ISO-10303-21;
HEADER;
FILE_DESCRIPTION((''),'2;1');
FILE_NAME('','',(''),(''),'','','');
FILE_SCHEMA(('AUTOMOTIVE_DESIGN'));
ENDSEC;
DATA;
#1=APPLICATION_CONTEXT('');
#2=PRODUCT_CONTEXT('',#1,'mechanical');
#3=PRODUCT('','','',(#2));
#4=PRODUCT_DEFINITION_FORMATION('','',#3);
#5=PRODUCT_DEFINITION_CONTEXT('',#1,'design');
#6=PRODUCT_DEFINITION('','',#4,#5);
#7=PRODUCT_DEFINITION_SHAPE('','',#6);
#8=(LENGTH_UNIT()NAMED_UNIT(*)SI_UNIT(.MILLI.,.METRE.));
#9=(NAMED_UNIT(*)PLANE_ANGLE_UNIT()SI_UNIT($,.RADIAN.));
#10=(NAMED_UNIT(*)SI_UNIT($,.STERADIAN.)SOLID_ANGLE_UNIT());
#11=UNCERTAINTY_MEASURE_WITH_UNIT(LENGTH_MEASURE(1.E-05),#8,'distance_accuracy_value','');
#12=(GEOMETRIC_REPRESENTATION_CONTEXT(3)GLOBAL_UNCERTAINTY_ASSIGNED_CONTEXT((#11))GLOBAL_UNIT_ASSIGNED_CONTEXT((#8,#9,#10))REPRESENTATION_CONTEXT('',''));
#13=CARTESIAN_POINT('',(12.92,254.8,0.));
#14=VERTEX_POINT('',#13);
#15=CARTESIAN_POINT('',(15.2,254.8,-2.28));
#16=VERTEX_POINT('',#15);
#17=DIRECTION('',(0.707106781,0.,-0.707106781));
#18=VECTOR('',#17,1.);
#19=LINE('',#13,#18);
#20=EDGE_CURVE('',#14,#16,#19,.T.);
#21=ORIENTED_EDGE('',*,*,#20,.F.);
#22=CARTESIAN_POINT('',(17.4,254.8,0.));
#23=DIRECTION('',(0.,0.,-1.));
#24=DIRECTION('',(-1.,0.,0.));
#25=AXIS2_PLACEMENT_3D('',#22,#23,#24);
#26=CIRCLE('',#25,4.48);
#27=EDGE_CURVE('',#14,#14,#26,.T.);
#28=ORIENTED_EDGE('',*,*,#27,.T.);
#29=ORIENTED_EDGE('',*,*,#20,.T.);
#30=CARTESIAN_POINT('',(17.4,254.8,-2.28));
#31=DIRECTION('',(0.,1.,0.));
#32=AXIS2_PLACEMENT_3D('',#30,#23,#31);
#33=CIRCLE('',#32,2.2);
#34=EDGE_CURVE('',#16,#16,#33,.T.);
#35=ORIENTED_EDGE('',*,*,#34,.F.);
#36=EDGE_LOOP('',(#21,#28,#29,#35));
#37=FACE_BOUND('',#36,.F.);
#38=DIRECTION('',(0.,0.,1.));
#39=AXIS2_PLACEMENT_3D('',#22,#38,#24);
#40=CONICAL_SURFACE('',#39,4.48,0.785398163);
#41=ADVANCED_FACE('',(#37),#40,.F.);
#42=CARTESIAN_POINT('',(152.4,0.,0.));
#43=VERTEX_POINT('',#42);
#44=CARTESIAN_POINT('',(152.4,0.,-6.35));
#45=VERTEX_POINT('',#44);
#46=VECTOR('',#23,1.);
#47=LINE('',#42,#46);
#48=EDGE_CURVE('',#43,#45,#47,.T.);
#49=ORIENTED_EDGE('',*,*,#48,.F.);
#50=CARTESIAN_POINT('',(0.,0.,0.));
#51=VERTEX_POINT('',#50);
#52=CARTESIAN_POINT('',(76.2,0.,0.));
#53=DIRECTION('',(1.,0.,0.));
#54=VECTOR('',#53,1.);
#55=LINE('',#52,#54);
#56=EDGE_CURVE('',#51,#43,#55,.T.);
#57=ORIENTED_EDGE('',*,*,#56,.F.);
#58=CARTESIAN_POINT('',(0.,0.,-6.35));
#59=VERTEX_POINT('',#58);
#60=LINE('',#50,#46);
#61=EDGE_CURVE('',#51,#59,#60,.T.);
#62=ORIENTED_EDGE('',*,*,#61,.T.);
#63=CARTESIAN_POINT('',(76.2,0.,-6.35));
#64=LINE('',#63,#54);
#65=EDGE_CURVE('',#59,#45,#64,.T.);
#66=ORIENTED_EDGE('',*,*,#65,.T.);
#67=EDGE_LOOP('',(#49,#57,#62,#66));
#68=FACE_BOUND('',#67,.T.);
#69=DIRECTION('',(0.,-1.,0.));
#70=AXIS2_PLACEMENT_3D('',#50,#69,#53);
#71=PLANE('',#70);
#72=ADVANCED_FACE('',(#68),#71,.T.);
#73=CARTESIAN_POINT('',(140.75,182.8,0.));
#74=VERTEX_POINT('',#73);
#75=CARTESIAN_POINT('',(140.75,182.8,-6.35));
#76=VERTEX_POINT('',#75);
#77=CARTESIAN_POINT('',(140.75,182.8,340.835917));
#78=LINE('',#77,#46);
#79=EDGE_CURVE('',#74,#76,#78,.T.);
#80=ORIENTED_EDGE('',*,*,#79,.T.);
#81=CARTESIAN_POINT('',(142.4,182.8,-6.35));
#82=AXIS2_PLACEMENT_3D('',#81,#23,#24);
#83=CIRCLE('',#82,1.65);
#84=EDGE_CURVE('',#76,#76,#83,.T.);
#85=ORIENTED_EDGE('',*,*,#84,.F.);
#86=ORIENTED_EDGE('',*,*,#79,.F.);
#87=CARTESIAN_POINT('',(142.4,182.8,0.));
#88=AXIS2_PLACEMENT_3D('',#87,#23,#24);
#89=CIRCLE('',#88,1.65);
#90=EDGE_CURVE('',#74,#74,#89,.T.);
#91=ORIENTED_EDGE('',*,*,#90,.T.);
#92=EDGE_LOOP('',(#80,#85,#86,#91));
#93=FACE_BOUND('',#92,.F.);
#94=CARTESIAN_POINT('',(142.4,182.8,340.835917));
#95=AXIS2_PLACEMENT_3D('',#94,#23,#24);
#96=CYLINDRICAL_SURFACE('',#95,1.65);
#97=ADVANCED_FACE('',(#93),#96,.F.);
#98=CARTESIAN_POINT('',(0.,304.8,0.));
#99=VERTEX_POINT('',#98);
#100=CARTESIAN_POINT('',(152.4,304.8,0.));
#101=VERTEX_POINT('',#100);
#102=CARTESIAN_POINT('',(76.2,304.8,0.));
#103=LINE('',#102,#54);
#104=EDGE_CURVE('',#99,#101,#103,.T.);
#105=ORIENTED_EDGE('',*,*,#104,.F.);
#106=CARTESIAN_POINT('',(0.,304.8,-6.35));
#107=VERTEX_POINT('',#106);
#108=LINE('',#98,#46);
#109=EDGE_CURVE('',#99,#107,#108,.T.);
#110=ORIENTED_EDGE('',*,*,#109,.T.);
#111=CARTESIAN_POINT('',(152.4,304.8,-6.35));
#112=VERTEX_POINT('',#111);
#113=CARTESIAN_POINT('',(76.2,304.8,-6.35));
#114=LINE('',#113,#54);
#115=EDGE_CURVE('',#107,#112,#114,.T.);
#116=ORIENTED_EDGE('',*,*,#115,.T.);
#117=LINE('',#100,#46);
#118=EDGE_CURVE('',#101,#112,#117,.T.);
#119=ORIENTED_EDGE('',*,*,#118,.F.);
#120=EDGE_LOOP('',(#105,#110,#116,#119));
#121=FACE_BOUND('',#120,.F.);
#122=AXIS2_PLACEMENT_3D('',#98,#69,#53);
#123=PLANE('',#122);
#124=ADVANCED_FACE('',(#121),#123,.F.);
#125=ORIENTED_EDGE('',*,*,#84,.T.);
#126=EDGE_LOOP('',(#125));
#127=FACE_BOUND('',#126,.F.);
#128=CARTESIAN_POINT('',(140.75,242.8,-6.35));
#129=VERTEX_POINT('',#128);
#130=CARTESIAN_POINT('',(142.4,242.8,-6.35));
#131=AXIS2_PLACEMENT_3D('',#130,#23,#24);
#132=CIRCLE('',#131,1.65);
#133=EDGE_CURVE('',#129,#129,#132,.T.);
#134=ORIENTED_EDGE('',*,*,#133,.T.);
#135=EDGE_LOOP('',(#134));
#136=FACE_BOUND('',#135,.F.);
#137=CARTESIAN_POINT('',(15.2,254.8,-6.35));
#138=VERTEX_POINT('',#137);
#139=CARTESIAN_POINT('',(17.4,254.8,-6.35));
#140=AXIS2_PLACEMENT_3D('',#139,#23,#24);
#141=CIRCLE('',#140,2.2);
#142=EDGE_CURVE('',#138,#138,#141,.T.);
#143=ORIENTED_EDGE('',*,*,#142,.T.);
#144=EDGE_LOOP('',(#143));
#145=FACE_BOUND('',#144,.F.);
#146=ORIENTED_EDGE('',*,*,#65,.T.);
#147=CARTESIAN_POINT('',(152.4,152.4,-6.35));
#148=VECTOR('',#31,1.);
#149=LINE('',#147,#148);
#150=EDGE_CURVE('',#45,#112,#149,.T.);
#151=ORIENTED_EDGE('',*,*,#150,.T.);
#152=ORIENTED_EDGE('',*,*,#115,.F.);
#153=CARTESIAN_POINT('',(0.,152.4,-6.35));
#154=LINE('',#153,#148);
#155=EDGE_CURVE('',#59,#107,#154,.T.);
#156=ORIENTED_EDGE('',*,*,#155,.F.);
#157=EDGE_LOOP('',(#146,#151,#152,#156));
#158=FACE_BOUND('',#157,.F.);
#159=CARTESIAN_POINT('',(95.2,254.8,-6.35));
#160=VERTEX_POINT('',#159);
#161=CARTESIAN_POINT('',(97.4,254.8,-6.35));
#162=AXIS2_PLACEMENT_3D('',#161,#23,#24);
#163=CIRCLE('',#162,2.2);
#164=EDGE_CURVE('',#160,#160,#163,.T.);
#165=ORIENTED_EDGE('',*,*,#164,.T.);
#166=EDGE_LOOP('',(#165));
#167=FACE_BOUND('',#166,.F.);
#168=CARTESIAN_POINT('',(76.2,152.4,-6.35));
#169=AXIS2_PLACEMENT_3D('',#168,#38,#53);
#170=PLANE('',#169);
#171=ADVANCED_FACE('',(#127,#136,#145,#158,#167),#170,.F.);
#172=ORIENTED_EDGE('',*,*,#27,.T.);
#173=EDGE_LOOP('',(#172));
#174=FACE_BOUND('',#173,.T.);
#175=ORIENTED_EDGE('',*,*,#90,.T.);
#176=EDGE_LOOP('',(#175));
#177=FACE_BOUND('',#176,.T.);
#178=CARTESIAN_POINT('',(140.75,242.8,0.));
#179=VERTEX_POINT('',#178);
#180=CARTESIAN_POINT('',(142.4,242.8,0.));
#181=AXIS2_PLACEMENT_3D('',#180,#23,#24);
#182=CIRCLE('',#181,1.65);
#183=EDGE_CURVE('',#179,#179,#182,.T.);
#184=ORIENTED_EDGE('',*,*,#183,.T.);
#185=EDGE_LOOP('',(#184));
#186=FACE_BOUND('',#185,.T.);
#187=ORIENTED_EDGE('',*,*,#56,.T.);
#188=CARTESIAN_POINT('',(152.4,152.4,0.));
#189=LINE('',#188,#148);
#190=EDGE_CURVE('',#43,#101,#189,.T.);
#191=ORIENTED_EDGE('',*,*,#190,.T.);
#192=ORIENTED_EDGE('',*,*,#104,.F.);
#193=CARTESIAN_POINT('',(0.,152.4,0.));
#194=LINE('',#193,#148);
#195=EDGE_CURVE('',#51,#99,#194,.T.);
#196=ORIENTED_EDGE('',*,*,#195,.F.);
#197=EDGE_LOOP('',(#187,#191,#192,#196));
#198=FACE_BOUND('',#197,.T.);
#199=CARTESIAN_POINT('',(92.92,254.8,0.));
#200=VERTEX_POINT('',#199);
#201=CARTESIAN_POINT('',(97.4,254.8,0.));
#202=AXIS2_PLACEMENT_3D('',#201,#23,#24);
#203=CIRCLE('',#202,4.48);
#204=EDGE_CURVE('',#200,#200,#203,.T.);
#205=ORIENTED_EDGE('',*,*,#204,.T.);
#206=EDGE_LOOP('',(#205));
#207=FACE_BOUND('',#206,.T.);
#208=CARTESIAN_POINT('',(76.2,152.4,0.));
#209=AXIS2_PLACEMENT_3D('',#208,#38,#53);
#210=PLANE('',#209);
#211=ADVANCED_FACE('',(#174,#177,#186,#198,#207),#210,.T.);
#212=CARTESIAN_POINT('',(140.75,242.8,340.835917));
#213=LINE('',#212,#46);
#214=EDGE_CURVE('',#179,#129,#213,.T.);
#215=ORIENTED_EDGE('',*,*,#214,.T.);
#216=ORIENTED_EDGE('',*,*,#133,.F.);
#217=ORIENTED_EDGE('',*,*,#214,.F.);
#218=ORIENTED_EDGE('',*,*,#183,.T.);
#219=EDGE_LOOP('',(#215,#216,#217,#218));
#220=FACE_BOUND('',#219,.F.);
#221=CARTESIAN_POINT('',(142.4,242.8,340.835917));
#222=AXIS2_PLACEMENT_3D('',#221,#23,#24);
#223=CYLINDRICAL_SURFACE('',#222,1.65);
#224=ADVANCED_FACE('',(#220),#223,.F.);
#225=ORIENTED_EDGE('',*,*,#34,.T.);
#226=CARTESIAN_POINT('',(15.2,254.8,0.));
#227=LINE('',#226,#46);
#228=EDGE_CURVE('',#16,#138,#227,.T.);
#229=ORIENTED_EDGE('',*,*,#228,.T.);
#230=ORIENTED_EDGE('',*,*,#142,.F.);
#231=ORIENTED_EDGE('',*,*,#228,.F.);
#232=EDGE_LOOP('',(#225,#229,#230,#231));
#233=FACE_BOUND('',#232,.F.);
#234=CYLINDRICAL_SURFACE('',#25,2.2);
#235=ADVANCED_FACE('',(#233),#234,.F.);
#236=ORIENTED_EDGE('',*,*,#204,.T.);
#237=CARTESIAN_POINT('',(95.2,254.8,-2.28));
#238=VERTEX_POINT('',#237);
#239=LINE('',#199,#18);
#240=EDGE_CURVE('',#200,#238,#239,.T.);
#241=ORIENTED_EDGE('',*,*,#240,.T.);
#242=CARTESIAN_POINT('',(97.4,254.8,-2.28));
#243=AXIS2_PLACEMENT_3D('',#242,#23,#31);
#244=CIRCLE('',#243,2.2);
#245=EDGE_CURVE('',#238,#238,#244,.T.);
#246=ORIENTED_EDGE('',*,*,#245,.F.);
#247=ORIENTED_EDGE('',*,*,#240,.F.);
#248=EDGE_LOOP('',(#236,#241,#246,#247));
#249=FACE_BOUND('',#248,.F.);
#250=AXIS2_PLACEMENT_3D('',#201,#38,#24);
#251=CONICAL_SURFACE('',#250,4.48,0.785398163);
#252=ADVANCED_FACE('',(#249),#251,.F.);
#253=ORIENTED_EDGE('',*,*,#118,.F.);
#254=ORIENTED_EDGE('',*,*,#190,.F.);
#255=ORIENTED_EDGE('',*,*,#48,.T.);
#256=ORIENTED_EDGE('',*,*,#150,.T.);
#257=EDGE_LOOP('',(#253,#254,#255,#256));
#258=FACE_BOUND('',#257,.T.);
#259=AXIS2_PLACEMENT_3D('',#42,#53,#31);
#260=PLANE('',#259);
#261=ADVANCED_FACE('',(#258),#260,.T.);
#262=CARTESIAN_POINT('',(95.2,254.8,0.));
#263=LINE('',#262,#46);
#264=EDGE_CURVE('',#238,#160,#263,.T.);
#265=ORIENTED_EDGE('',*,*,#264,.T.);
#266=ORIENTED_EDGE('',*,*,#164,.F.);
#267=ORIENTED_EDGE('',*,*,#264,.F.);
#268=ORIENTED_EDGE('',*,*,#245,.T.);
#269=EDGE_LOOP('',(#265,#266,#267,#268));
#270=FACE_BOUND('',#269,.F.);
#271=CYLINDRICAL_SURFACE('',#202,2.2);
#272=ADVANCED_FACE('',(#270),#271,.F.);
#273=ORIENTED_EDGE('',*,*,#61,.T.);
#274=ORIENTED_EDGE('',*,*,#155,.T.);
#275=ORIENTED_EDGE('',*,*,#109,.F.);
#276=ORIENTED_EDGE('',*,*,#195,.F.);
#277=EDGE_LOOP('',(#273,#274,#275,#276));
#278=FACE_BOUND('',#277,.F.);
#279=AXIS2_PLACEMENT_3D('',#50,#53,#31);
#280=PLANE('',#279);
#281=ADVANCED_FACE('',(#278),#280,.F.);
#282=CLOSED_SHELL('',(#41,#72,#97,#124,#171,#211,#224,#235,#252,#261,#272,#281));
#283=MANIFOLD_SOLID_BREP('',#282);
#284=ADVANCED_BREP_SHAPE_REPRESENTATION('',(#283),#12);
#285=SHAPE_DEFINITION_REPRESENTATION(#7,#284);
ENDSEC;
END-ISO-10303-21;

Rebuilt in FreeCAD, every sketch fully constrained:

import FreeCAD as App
import Part
import Sketcher
from FreeCAD import Vector
Q = App.Units.Quantity

doc = App.newDocument("Part")
body = doc.addObject("PartDesign::Body", "Body")

sketch1 = doc.addObject("Sketcher::SketchObject", "Sketch")
body.addObject(sketch1)
sketch1.AttachmentSupport = (doc.XY_Plane, [""])
sketch1.MapMode = "FlatFace"
sketch1.addGeometry([
    Part.LineSegment(Vector(0, 304.8, 0), Vector(0, 0, 0)),
    Part.LineSegment(Vector(0, 0, 0), Vector(152.4, 0, 0)),
    Part.LineSegment(Vector(152.4, 0, 0), Vector(152.4, 304.8, 0)),
    Part.LineSegment(Vector(152.4, 304.8, 0), Vector(0, 304.8, 0)),
], False)
sketch1.addConstraint([
    Sketcher.Constraint("Coincident", 0, 2, 1, 1),
    Sketcher.Constraint("Coincident", 1, 2, 2, 1),
    Sketcher.Constraint("Coincident", 2, 2, 3, 1),
    Sketcher.Constraint("Coincident", 3, 2, 0, 1),
    Sketcher.Constraint("Vertical", 0),
    Sketcher.Constraint("Horizontal", 1),
    Sketcher.Constraint("Vertical", 2),
    Sketcher.Constraint("Horizontal", 3),
    Sketcher.Constraint("Coincident", 0, 2, -1, 1),
    Sketcher.Constraint("DistanceX", 1, 1, 1, 2, Q("6 in")),
    Sketcher.Constraint("DistanceY", 0, 2, 0, 1, Q("12 in")),
])
pad1 = doc.addObject("PartDesign::Pad", "Pad")
body.addObject(pad1)
pad1.Profile = sketch1
pad1.Length = Q("0.25 in")
pad1.Reversed = True

sketch2 = doc.addObject("Sketcher::SketchObject", "Sketch001")
body.addObject(sketch2)
sketch2.AttachmentSupport = (doc.XY_Plane, [""])
sketch2.MapMode = "FlatFace"
sketch2.addGeometry([
    Part.Circle(Vector(97.4, 254.8, 0), Vector(0, 0, 1), 2.2),
    Part.Circle(Vector(17.4, 254.8, 0), Vector(0, 0, 1), 2.2),
], False)
sketch2.addConstraint([
    Sketcher.Constraint("Equal", 0, 1),
    Sketcher.Constraint("Horizontal", 0, 3, 1, 3),
    Sketcher.Constraint("Diameter", 0, 4.4),
    Sketcher.Constraint("DistanceX", -1, 1, 0, 3, 97.4),
    Sketcher.Constraint("DistanceY", -1, 1, 0, 3, 254.8),
    Sketcher.Constraint("DistanceX", -1, 1, 1, 3, 17.4),
])
doc.recompute()
hole = doc.addObject("PartDesign::Hole", "Hole")
body.addObject(hole)
hole.Profile = sketch2
hole.ThreadType = "None"
hole.Diameter = 4.4
hole.DepthType = "ThroughAll"
hole.HoleCutType = "Countersink"
hole.HoleCutDiameter = 8.96
hole.HoleCutCountersinkAngle = 90

sketch3 = doc.addObject("Sketcher::SketchObject", "Sketch002")
body.addObject(sketch3)
sketch3.AttachmentSupport = (doc.XY_Plane, [""])
sketch3.MapMode = "FlatFace"
sketch3.addGeometry([
    Part.Circle(Vector(142.4, 242.8, 0), Vector(0, 0, 1), 1.65),
    Part.Circle(Vector(142.4, 182.8, 0), Vector(0, 0, 1), 1.65),
], False)
sketch3.addConstraint([
    Sketcher.Constraint("Equal", 0, 1),
    Sketcher.Constraint("Vertical", 0, 3, 1, 3),
    Sketcher.Constraint("Diameter", 0, 3.3),
    Sketcher.Constraint("DistanceX", -1, 1, 0, 3, 142.4),
    Sketcher.Constraint("DistanceY", -1, 1, 0, 3, 242.8),
    Sketcher.Constraint("DistanceY", -1, 1, 1, 3, 182.8),
])
doc.recompute()
hole2 = doc.addObject("PartDesign::Hole", "Hole001")
body.addObject(hole2)
hole2.Profile = sketch3
hole2.ThreadType = "None"
hole2.Diameter = 3.3
hole2.DepthType = "ThroughAll"

doc.recompute()
